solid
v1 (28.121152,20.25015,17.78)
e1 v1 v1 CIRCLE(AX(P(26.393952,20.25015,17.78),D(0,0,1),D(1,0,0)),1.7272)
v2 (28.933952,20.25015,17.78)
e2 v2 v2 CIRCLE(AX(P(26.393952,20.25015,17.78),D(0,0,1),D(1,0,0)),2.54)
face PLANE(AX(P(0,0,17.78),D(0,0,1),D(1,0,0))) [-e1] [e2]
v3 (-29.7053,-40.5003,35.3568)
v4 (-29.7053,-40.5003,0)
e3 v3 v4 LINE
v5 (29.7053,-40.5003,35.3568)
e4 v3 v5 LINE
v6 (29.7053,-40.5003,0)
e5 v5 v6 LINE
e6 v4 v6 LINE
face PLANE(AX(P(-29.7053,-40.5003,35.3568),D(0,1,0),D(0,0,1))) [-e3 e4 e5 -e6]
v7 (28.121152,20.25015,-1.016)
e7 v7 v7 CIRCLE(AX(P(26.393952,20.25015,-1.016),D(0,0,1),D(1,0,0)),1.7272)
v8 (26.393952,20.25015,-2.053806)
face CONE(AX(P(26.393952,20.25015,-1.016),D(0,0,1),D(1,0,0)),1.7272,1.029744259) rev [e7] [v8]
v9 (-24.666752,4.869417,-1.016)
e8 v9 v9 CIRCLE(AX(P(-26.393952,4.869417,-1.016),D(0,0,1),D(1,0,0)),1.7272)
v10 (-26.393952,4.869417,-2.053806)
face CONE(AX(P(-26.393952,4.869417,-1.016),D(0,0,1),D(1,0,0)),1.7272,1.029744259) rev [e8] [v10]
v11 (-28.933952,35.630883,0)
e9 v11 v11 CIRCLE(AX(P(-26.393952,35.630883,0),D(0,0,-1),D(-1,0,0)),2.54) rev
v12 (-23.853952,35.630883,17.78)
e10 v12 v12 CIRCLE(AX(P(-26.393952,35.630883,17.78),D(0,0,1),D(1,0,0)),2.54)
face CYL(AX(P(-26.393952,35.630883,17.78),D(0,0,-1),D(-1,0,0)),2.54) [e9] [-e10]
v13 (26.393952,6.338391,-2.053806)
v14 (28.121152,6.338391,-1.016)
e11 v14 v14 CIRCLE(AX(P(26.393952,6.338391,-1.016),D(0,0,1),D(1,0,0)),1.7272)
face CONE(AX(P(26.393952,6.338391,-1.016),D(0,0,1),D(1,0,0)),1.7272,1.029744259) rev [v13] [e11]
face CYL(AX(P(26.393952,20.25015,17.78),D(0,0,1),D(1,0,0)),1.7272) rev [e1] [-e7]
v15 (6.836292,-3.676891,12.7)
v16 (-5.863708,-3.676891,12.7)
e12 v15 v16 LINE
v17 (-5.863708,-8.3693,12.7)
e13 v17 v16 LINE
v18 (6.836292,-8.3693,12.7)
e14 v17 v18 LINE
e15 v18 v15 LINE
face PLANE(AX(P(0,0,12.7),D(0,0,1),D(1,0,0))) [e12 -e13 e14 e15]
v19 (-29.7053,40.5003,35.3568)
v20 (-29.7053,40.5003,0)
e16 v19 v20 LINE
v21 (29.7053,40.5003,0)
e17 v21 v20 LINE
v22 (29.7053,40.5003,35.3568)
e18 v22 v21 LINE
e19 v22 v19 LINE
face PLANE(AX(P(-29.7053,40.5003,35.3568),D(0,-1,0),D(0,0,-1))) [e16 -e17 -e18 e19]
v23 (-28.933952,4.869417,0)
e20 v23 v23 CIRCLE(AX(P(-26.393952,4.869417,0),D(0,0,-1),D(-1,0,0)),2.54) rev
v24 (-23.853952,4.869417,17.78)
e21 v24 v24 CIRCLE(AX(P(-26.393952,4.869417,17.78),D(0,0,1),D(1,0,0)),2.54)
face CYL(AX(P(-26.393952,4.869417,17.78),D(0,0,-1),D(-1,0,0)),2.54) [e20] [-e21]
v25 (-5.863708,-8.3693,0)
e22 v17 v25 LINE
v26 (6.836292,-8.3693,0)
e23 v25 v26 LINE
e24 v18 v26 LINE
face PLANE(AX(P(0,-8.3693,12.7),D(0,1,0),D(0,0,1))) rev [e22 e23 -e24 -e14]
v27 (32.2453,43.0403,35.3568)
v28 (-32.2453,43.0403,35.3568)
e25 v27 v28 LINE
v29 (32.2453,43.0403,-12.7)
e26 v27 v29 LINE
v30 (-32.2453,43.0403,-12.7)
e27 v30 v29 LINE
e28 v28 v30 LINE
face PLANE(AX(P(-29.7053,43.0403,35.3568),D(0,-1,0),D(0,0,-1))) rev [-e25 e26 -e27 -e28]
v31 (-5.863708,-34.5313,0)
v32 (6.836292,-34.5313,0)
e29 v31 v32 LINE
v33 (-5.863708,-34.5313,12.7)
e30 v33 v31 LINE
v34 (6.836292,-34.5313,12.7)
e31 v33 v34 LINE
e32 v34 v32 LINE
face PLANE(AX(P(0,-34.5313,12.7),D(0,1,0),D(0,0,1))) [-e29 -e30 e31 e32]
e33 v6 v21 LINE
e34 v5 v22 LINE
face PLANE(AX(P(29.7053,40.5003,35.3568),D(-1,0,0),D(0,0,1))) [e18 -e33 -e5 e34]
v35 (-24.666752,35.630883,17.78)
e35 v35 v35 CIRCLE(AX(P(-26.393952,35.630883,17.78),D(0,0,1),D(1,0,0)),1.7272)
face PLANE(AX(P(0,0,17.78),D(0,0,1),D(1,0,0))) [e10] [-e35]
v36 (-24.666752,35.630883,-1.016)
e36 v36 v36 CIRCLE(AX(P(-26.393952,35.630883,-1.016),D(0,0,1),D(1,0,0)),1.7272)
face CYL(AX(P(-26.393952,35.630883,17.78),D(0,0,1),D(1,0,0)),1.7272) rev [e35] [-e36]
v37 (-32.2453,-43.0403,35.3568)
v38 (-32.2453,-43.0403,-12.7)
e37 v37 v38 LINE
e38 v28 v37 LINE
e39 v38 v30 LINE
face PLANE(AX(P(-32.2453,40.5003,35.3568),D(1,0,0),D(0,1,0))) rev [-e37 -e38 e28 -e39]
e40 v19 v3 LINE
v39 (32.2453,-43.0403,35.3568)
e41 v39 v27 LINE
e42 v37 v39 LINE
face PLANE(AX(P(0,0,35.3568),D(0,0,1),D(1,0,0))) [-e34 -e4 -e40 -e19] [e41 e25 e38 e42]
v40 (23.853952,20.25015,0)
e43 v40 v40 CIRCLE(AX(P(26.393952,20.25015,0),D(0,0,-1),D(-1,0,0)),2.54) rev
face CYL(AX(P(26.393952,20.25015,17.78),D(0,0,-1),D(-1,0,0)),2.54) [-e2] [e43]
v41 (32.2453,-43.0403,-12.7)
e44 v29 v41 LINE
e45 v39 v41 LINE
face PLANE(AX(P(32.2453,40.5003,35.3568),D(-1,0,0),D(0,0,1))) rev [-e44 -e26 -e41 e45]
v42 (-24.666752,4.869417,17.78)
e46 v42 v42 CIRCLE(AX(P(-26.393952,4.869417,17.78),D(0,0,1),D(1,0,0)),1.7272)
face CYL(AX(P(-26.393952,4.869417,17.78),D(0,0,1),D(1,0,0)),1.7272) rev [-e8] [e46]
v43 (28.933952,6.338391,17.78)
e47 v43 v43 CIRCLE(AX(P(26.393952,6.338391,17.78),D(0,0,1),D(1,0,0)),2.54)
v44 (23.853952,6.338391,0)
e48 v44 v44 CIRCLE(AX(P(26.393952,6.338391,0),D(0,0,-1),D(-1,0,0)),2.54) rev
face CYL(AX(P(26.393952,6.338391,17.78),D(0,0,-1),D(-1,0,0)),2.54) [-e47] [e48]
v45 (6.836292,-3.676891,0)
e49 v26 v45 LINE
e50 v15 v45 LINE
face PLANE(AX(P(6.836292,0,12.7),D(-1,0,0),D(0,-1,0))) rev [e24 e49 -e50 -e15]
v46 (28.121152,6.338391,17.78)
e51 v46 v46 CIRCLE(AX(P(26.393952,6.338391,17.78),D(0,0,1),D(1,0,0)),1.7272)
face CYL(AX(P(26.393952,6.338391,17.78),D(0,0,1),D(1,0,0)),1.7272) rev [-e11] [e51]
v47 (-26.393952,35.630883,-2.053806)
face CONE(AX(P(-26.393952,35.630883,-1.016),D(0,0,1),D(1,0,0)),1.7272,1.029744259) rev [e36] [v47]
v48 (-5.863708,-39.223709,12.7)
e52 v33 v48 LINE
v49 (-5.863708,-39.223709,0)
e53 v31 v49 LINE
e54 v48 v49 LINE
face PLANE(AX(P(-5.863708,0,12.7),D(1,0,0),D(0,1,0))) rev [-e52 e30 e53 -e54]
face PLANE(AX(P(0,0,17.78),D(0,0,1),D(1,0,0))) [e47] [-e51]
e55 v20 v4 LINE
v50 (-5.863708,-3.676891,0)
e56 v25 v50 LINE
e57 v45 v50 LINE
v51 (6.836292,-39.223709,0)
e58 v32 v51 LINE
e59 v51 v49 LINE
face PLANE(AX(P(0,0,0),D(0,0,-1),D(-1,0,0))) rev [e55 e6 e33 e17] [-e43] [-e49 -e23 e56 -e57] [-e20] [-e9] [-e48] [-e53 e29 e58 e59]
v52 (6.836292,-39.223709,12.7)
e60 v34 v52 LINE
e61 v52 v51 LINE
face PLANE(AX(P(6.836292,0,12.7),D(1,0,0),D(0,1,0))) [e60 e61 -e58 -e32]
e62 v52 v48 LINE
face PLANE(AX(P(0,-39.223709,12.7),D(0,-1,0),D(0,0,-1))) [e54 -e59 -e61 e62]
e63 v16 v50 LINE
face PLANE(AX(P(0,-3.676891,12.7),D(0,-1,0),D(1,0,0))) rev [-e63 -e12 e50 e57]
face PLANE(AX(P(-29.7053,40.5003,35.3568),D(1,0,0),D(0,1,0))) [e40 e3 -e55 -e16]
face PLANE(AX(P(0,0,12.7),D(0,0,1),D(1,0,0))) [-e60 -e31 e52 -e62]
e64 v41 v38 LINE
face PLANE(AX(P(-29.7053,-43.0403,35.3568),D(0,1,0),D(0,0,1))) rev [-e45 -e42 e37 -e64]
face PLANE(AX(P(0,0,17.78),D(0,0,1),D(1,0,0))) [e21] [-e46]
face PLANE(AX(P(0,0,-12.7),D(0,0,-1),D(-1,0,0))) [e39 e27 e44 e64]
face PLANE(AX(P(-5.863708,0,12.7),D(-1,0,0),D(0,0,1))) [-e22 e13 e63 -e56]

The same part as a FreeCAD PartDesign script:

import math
import FreeCAD as App
import Part
import Sketcher
Q = App.Units.Quantity


def add_polygon(sketch, points):
    """Adds a closed chain of lines whose ends are joined by coincident constraints."""
    first, n = sketch.GeometryCount, len(points)
    for a, b in zip(points, points[1:] + points[:1]):
        sketch.addGeometry(Part.LineSegment(App.Vector(*a, 0), App.Vector(*b, 0)), False)
    for i in range(n):
        sketch.addConstraint(Sketcher.Constraint("Coincident", first + i, 2, first + (i + 1) % n, 1))

doc = App.newDocument("Part")
params = doc.addObject("Spreadsheet::Sheet", "Params")
for row, (alias, value) in enumerate([
    ("sketch1_width", "2.539 in"),
    ("sketch1_height", "3.389 in"),
    ("pad1_length", "1.392 in"),
    ("sketch2_width", "2.539 in"),
    ("sketch2_height", "3.389 in"),
    ("pad2_length", "0.5 in"),
    ("sketch3_width", "0.5 in"),
    ("pad3_length", "0.5 in"),
    ("sketch4_radius", "0.1 in"),
    ("pad4_length", "0.7 in"),
    ("sketch5_diameter", "0.136 in"),
    ("hole_diameter", "0.136 in"),
    ("hole_depth", "0.74 in"),
], start=1):
    params.set(f"A{row}", alias)
    params.set(f"B{row}", "=" + value)
    params.setAlias(f"B{row}", alias)

body = doc.addObject("PartDesign::Body", "Body")

# Sketch on XY plane
sketch1 = body.newObject("Sketcher::SketchObject", "Sketch")
sketch1.AttachmentSupport = (doc.getObject("XY_Plane"), [""])
sketch1.MapMode = "FlatFace"
add_polygon(sketch1, [(-32, 43), (-32, -43), (32, -43), (32, 43)])  # lines 0-3
add_polygon(sketch1, [(30, -41), (-30, -41), (-30, 41), (30, 41)])  # lines 4-7
sketch1.addConstraint(Sketcher.Constraint("Vertical", 0))
sketch1.addConstraint(Sketcher.Constraint("Horizontal", 1))
sketch1.addConstraint(Sketcher.Constraint("Vertical", 2))
sketch1.addConstraint(Sketcher.Constraint("Horizontal", 3))
sketch1.addConstraint(Sketcher.Constraint("Horizontal", 4))
sketch1.addConstraint(Sketcher.Constraint("Vertical", 5))
sketch1.addConstraint(Sketcher.Constraint("Horizontal", 6))
sketch1.addConstraint(Sketcher.Constraint("Vertical", 7))
sketch1.addConstraint(Sketcher.Constraint("Symmetric", 0, 2, 2, 2, -1, 1))
sketch1.addConstraint(Sketcher.Constraint("Symmetric", 4, 2, 6, 2, -1, 1))
sketch1.addConstraint(Sketcher.Constraint("DistanceX", 0, 2, 4, 2, Q("0.1 in")))
sketch1.addConstraint(Sketcher.Constraint("DistanceY", 0, 2, 4, 2, Q("0.1 in")))
sketch1.addConstraint(Sketcher.Constraint("DistanceX", 1, 1, 1, 2, Q("2.539 in")))
sketch1.addConstraint(Sketcher.Constraint("DistanceY", 0, 2, 0, 1, Q("3.389 in")))
sketch1.setExpression("Constraints[20]", "Params.sketch1_width")
sketch1.setExpression("Constraints[21]", "Params.sketch1_height")
pad1 = body.newObject("PartDesign::Pad", "Pad")
pad1.Profile = sketch1
pad1.setExpression("Length", "Params.pad1_length")

# Sketch on XY plane
sketch2 = body.newObject("Sketcher::SketchObject", "Sketch001")
sketch2.AttachmentSupport = (doc.getObject("XY_Plane"), [""])
sketch2.MapMode = "FlatFace"
add_polygon(sketch2, [(32, 43), (32, -43), (-32, -43), (-32, 43)])  # lines 0-3
sketch2.addConstraint(Sketcher.Constraint("Vertical", 0))
sketch2.addConstraint(Sketcher.Constraint("Horizontal", 1))
sketch2.addConstraint(Sketcher.Constraint("Vertical", 2))
sketch2.addConstraint(Sketcher.Constraint("Horizontal", 3))
sketch2.addConstraint(Sketcher.Constraint("Symmetric", 0, 2, 2, 2, -1, 1))
sketch2.addConstraint(Sketcher.Constraint("DistanceX", 1, 2, 1, 1, Q("2.539 in")))
sketch2.addConstraint(Sketcher.Constraint("DistanceY", 0, 2, 0, 1, Q("3.389 in")))
sketch2.setExpression("Constraints[9]", "Params.sketch2_width")
sketch2.setExpression("Constraints[10]", "Params.sketch2_height")
pad2 = body.newObject("PartDesign::Pad", "Pad001")
pad2.Profile = sketch2
pad2.setExpression("Length", "Params.pad2_length")
pad2.Reversed = True

# Sketch on XY plane
sketch3 = body.newObject("Sketcher::SketchObject", "Sketch002")
sketch3.AttachmentSupport = (doc.getObject("XY_Plane"), [""])
sketch3.MapMode = "FlatFace"
add_polygon(sketch3, [(-5.9, -3.7), (-5.9, -8.4), (6.8, -8.4), (6.8, -3.7)])  # lines 0-3
add_polygon(sketch3, [(-5.9, -34.5), (-5.9, -39.2), (6.8, -39.2), (6.8, -34.5)])  # lines 4-7
sketch3.addConstraint(Sketcher.Constraint("Vertical", 0))
sketch3.addConstraint(Sketcher.Constraint("Horizontal", 1))
sketch3.addConstraint(Sketcher.Constraint("Vertical", 2))
sketch3.addConstraint(Sketcher.Constraint("Horizontal", 3))
sketch3.addConstraint(Sketcher.Constraint("Vertical", 4))
sketch3.addConstraint(Sketcher.Constraint("Horizontal", 5))
sketch3.addConstraint(Sketcher.Constraint("Vertical", 6))
sketch3.addConstraint(Sketcher.Constraint("Horizontal", 7))
sketch3.addConstraint(Sketcher.Constraint("Vertical", 3, 2, 4, 2))
sketch3.addConstraint(Sketcher.Constraint("Vertical", 2, 2, 5, 2))
sketch3.addConstraint(Sketcher.Constraint("Equal", 2, 4))
sketch3.addConstraint(Sketcher.Constraint("DistanceX", 1, 1, 1, 2, Q("0.5 in")))
sketch3.addConstraint(Sketcher.Constraint("DistanceY", 6, 2, 1, 2, Q("1.03 in")))
sketch3.addConstraint(Sketcher.Constraint("DistanceY", 0, 2, -1, 1, Q("0.3295 in")))
sketch3.addConstraint(Sketcher.Constraint("DistanceY", 0, 2, 0, 1, 4.692409))
sketch3.addConstraint(Sketcher.Constraint("DistanceX", 0, 2, -1, 1, 5.863708))
sketch3.setExpression("Constraints[19]", "Params.sketch3_width")
pad3 = body.newObject("PartDesign::Pad", "Pad002")
pad3.Profile = sketch3
pad3.setExpression("Length", "Params.pad3_length")

# Sketch on XY plane
sketch4 = body.newObject("Sketcher::SketchObject", "Sketch003")
sketch4.AttachmentSupport = (doc.getObject("XY_Plane"), [""])
sketch4.MapMode = "FlatFace"
sketch4.addGeometry(Part.ArcOfCircle(Part.Circle(App.Vector(-26.4, 4.9, 0), App.Vector(0, 0, 1), 2.5), math.radians(0), math.radians(90)), False)
sketch4.addGeometry(Part.ArcOfCircle(Part.Circle(App.Vector(-26.4, 4.9, 0), App.Vector(0, 0, 1), 2.5), math.radians(90), math.radians(360)), False)
sketch4.addGeometry(Part.ArcOfCircle(Part.Circle(App.Vector(-26.4, 35.6, 0), App.Vector(0, 0, 1), 2.5), math.radians(0), math.radians(270)), False)
sketch4.addGeometry(Part.ArcOfCircle(Part.Circle(App.Vector(-26.4, 35.6, 0), App.Vector(0, 0, 1), 2.5), math.radians(-90), math.radians(0)), False)
sketch4.addGeometry(Part.ArcOfCircle(Part.Circle(App.Vector(26.4, 20.3, 0), App.Vector(0, 0, 1), 2.5), math.radians(90), math.radians(270)), False)
sketch4.addGeometry(Part.ArcOfCircle(Part.Circle(App.Vector(26.4, 20.3, 0), App.Vector(0, 0, 1), 2.5), math.radians(-90), math.radians(0)), False)
sketch4.addGeometry(Part.ArcOfCircle(Part.Circle(App.Vector(26.4, 20.3, 0), App.Vector(0, 0, 1), 2.5), math.radians(0), math.radians(90)), False)
sketch4.addGeometry(Part.ArcOfCircle(Part.Circle(App.Vector(26.4, 6.3, 0), App.Vector(0, 0, 1), 2.5), math.radians(90), math.radians(215)), False)
sketch4.addGeometry(Part.ArcOfCircle(Part.Circle(App.Vector(26.4, 6.3, 0), App.Vector(0, 0, 1), 2.5), math.radians(-145), math.radians(0)), False)
sketch4.addGeometry(Part.ArcOfCircle(Part.Circle(App.Vector(26.4, 6.3, 0), App.Vector(0, 0, 1), 2.5), math.radians(0), math.radians(90)), False)
sketch4.addConstraint(Sketcher.Constraint("Tangent", 0, 1, 1, 2))
sketch4.addConstraint(Sketcher.Constraint("Coincident", 1, 1, 0, 2))
sketch4.addConstraint(Sketcher.Constraint("Tangent", 2, 1, 3, 2))
sketch4.addConstraint(Sketcher.Constraint("Coincident", 3, 1, 2, 2))
sketch4.addConstraint(Sketcher.Constraint("Tangent", 4, 2, 5, 1))
sketch4.addConstraint(Sketcher.Constraint("Tangent", 5, 2, 6, 1))
sketch4.addConstraint(Sketcher.Constraint("Tangent", 6, 2, 4, 1))
sketch4.addConstraint(Sketcher.Constraint("Tangent", 7, 2, 8, 1))
sketch4.addConstraint(Sketcher.Constraint("Tangent", 8, 2, 9, 1))
sketch4.addConstraint(Sketcher.Constraint("Tangent", 9, 2, 7, 1))
sketch4.addConstraint(Sketcher.Constraint("Equal", 1, 2))
sketch4.addConstraint(Sketcher.Constraint("Equal", 3, 4))
sketch4.addConstraint(Sketcher.Constraint("Equal", 6, 7))
sketch4.addConstraint(Sketcher.Constraint("Horizontal", 1, 3, 0, 1))
sketch4.addConstraint(Sketcher.Constraint("Horizontal", 3, 3, 2, 1))
sketch4.addConstraint(Sketcher.Constraint("Horizontal", 6, 3, 5, 2))
sketch4.addConstraint(Sketcher.Constraint("Horizontal", 0, 1, 7, 2))
sketch4.addConstraint(Sketcher.Constraint("Horizontal", 9, 3, 8, 2))
sketch4.addConstraint(Sketcher.Constraint("Vertical", 1, 3, 2, 3))
sketch4.addConstraint(Sketcher.Constraint("Vertical", 6, 3, 7, 3))
sketch4.addConstraint(Sketcher.Constraint("Vertical", 3, 3, 1, 1))
sketch4.addConstraint(Sketcher.Constraint("Vertical", 1, 1, 3, 1))
sketch4.addConstraint(Sketcher.Constraint("Vertical", 9, 3, 4, 2))
sketch4.addConstraint(Sketcher.Constraint("Vertical", 4, 2, 6, 2))
sketch4.addConstraint(Sketcher.Constraint("Vertical", 6, 2, 9, 2))
sketch4.addConstraint(Sketcher.Constraint("Radius", 0, Q("0.1 in")))
sketch4.addConstraint(Sketcher.Constraint("DistanceY", -1, 1, 4, 3, 20.25015))
sketch4.addConstraint(Sketcher.Constraint("DistanceY", -1, 1, 7, 3, 6.338391))
sketch4.addConstraint(Sketcher.Constraint("DistanceX", 7, 2, 9, 3, 2.072128))
sketch4.addConstraint(Sketcher.Constraint("DistanceX", 0, 3, -1, 1, 26.393952))
sketch4.addConstraint(Sketcher.Constraint("DistanceY", -1, 1, 2, 3, 35.630883))
sketch4.addConstraint(Sketcher.Constraint("DistanceX", -1, 1, 4, 3, 26.393952))
sketch4.setExpression("Constraints[25]", "Params.sketch4_radius")
pad4 = body.newObject("PartDesign::Pad", "Pad003")
pad4.Profile = sketch4
pad4.setExpression("Length", "Params.pad4_length")

# Sketch on XY plane
sketch5 = body.newObject("Sketcher::SketchObject", "Sketch004")
sketch5.AttachmentSupport = (doc.getObject("XY_Plane"), [""])
sketch5.MapMode = "FlatFace"
sketch5.AttachmentOffset = App.Placement(App.Vector(0, 0, 0.7 * 25.4), App.Rotation())
sketch5.addGeometry(Part.Circle(App.Vector(-26.4, 4.9, 0), App.Vector(0, 0, 1), 1.7), False)
sketch5.addGeometry(Part.Circle(App.Vector(-26.4, 35.6, 0), App.Vector(0, 0, 1), 1.7), False)
sketch5.addGeometry(Part.Circle(App.Vector(26.4, 20.3, 0), App.Vector(0, 0, 1), 1.7), False)
sketch5.addGeometry(Part.Circle(App.Vector(26.4, 6.3, 0), App.Vector(0, 0, 1), 1.7), False)
sketch5.addConstraint(Sketcher.Constraint("Equal", 0, 1))
sketch5.addConstraint(Sketcher.Constraint("Equal", 1, 2))
sketch5.addConstraint(Sketcher.Constraint("Equal", 2, 3))
sketch5.addConstraint(Sketcher.Constraint("Vertical", 0, 3, 1, 3))
sketch5.addConstraint(Sketcher.Constraint("Vertical", 2, 3, 3, 3))
sketch5.addConstraint(Sketcher.Constraint("Diameter", 0, Q("0.136 in")))
sketch5.addConstraint(Sketcher.Constraint("DistanceY", -1, 1, 2, 3, 20.25015))
sketch5.addConstraint(Sketcher.Constraint("DistanceY", -1, 1, 3, 3, 6.338391))
sketch5.addConstraint(Sketcher.Constraint("DistanceX", 0, 3, -1, 1, 26.393952))
sketch5.addConstraint(Sketcher.Constraint("DistanceY", -1, 1, 0, 3, 4.869417))
sketch5.addConstraint(Sketcher.Constraint("DistanceY", -1, 1, 1, 3, 35.630883))
sketch5.addConstraint(Sketcher.Constraint("DistanceX", -1, 1, 2, 3, 26.393952))
sketch5.setExpression("Constraints[5]", "Params.sketch5_diameter")
doc.recompute()
hole = body.newObject("PartDesign::Hole", "Hole")
hole.Profile = sketch5
hole.ThreadType = "None"
hole.setExpression("Diameter", "Params.hole_diameter")
hole.DepthType = "Dimension"
hole.setExpression("Depth", "Params.hole_depth")
hole.DrillPoint = "Angled"
hole.DrillPointAngle = 118

doc.recompute()
